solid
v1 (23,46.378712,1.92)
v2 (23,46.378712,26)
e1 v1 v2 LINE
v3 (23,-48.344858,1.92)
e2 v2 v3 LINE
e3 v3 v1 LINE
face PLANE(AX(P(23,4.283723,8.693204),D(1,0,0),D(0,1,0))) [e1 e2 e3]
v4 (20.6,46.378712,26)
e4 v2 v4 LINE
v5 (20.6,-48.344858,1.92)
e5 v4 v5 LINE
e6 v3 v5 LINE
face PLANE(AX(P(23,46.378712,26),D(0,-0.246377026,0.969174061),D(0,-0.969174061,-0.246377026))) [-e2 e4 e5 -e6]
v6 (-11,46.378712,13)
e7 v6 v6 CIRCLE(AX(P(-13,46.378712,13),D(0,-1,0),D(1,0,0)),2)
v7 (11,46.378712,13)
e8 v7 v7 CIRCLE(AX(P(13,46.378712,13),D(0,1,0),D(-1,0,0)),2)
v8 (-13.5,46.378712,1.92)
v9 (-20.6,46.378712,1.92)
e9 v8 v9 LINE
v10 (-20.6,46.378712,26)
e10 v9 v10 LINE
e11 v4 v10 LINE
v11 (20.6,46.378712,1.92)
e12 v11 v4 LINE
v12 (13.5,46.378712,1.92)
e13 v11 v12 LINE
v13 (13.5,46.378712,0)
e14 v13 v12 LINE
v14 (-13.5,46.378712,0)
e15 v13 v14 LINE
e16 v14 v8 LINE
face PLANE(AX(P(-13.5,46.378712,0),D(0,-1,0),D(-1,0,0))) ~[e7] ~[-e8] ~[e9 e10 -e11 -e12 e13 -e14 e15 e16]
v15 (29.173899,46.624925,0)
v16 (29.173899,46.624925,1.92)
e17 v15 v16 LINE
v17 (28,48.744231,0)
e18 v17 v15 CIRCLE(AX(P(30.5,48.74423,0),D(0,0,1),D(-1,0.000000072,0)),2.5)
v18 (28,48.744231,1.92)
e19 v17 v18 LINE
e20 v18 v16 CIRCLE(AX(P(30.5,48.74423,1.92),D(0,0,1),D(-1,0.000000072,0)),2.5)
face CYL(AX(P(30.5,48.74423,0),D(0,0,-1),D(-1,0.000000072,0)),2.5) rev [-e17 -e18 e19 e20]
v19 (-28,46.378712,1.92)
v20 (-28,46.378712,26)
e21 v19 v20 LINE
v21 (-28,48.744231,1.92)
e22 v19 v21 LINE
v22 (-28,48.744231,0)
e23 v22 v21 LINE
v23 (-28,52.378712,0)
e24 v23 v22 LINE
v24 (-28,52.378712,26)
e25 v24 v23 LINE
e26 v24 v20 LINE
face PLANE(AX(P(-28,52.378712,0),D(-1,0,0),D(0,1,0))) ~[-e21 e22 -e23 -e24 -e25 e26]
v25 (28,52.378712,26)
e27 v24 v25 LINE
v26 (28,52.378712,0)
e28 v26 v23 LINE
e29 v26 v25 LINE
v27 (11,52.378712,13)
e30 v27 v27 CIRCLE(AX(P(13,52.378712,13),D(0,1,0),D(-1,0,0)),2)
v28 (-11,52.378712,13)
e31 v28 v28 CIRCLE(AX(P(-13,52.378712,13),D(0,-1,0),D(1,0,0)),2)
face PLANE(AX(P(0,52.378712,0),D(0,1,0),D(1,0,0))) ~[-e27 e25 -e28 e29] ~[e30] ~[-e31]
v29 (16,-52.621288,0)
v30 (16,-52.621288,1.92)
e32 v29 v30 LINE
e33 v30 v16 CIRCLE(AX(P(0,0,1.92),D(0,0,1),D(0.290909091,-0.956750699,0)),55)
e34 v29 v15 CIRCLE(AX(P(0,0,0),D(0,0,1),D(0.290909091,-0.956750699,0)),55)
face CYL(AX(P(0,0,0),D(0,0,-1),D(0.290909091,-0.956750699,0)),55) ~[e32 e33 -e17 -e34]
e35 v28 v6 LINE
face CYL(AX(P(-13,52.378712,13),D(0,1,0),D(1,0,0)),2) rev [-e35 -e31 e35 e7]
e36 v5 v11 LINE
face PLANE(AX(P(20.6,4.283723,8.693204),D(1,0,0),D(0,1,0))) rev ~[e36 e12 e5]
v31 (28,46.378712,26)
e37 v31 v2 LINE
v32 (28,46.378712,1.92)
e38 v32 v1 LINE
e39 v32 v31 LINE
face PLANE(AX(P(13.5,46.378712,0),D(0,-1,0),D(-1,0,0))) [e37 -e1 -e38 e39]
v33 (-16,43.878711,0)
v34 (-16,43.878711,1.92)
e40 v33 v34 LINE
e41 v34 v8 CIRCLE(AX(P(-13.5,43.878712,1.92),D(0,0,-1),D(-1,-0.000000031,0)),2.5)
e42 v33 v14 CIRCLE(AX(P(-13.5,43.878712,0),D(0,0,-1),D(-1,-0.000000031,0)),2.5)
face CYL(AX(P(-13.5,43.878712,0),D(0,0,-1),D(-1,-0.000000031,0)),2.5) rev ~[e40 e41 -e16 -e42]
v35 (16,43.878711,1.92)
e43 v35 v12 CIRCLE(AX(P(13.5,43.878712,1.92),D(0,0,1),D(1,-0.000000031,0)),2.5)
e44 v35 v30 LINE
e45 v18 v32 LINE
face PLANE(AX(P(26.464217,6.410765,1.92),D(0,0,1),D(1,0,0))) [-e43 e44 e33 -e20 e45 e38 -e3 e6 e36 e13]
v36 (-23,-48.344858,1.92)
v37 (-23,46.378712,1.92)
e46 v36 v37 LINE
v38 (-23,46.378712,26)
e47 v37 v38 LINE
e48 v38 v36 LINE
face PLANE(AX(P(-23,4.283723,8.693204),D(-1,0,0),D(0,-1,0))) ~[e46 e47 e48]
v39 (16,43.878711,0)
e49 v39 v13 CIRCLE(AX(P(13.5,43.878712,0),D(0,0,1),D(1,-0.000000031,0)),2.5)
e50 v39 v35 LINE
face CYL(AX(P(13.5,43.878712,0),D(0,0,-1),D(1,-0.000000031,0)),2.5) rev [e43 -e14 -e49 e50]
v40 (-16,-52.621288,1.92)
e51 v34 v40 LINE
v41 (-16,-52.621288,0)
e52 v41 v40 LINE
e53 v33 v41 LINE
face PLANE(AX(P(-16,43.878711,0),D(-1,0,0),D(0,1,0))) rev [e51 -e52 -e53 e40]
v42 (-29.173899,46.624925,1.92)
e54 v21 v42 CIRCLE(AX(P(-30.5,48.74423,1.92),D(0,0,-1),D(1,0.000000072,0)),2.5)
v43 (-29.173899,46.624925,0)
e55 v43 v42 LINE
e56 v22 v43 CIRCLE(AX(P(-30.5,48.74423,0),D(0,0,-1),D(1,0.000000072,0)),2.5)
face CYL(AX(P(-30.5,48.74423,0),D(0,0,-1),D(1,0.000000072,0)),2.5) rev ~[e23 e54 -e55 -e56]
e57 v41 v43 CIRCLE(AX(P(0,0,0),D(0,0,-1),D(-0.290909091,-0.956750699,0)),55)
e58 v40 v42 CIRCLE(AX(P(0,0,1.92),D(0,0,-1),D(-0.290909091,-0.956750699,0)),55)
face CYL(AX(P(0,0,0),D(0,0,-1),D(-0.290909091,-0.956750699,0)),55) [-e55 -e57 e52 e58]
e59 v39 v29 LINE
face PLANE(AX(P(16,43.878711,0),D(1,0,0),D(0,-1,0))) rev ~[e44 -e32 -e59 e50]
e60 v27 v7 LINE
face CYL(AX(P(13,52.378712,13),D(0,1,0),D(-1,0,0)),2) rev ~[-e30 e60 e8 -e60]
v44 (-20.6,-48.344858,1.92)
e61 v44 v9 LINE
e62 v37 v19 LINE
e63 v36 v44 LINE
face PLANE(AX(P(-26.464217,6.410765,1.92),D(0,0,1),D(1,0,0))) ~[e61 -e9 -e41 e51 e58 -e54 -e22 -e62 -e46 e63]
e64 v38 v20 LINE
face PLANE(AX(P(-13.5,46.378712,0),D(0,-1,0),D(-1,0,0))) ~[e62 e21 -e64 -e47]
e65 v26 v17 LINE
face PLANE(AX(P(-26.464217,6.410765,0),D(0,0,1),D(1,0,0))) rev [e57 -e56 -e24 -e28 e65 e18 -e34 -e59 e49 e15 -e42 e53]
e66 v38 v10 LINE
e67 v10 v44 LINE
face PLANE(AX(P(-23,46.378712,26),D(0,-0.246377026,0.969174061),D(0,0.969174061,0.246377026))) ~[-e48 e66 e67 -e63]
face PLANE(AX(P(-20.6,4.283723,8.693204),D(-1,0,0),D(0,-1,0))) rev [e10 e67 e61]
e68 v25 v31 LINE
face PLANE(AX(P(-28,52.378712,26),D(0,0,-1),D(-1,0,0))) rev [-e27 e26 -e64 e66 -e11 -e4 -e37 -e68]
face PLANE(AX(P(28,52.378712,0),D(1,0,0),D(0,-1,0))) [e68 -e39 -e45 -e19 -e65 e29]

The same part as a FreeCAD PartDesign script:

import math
import FreeCAD as App
import Part
import Sketcher

V = App.Vector


def add_polygon(sketch, points):
    """Adds a closed chain of lines whose ends are joined by coincident constraints."""
    first, n = sketch.GeometryCount, len(points)
    for a, b in zip(points, points[1:] + points[:1]):
        sketch.addGeometry(Part.LineSegment(App.Vector(*a, 0), App.Vector(*b, 0)), False)
    for i in range(n):
        sketch.addConstraint(Sketcher.Constraint("Coincident", first + i, 2, first + (i + 1) % n, 1))

doc = App.newDocument("Part")
body = doc.addObject("PartDesign::Body", "Body")

sketch1 = doc.addObject("Sketcher::SketchObject", "Sketch")
body.addObject(sketch1)
sketch1.AttachmentSupport = (doc.XY_Plane, [""])
sketch1.MapMode = "FlatFace"
sketch1.addGeometry([
    Part.ArcOfCircle(Part.Circle(V(0, 0, 0), V(0, 0, 1), 55), math.radians(-73.08761), math.radians(57.965181)),
    Part.ArcOfCircle(Part.Circle(V(30.5, 48.74423, 0), V(0, 0, 1), 2.5), math.radians(179.999996), math.radians(237.964784)),
    Part.LineSegment(V(28, 48.744231, 0), V(28, 52.378712, 0)),
    Part.LineSegment(V(28, 52.378712, 0), V(0, 52.378712, 0)),
    Part.LineSegment(V(0, 52.378712, 0), V(0, 46.378712, 0)),
    Part.LineSegment(V(0, 46.378712, 0), V(13.5, 46.378712, 0)),
    Part.ArcOfCircle(Part.Circle(V(13.5, 43.878712, 0), V(0, 0, 1), 2.5), math.radians(-0.000002), math.radians(89.999992)),
    Part.LineSegment(V(16, 43.878711, 0), V(16, -52.621288, 0)),
], False)
sketch1.addConstraint([
    Sketcher.Constraint("Coincident", 0, 2, 1, 2),
    Sketcher.Constraint("Tangent", 1, 1, 2, 1),
    Sketcher.Constraint("Coincident", 2, 2, 3, 1),
    Sketcher.Constraint("Coincident", 3, 2, 4, 1),
    Sketcher.Constraint("Coincident", 4, 2, 5, 1),
    Sketcher.Constraint("Tangent", 5, 2, 6, 2),
    Sketcher.Constraint("Tangent", 6, 1, 7, 1),
    Sketcher.Constraint("Coincident", 7, 2, 0, 1),
    Sketcher.Constraint("Vertical", 2),
    Sketcher.Constraint("Horizontal", 3),
    Sketcher.Constraint("Vertical", 4),
    Sketcher.Constraint("Horizontal", 5),
    Sketcher.Constraint("Vertical", 7),
    Sketcher.Constraint("Coincident", 0, 3, -1, 1),
    Sketcher.Constraint("Equal", 1, 6),
    Sketcher.Constraint("PointOnObject", 3, 2, -2),
    Sketcher.Constraint("Radius", 0, 55.0),
    Sketcher.Constraint("Radius", 1, 2.5),
    Sketcher.Constraint("DistanceX", 3, 2, 3, 1, 28.0),
    Sketcher.Constraint("DistanceY", 4, 2, 4, 1, 6.0),
    Sketcher.Constraint("DistanceX", 5, 1, 5, 2, 13.5),
    Sketcher.Constraint("DistanceY", 7, 2, 7, 1, 96.5),
    Sketcher.Constraint("DistanceX", -1, 1, 0, 2, 29.173899),
])
pad1 = doc.addObject("PartDesign::Pad", "Pad")
body.addObject(pad1)
pad1.Profile = sketch1
pad1.Length = 1.92

sketch2 = doc.addObject("Sketcher::SketchObject", "Sketch001")
body.addObject(sketch2)
sketch2.AttachmentSupport = (doc.XZ_Plane, [""])
sketch2.MapMode = "FlatFace"
sketch2.AttachmentOffset = App.Placement(V(0, 0, -52.378712), App.Rotation())
add_polygon(sketch2, [(28, 26), (28, 0), (0, 0), (0, 26)])
sketch2.addGeometry(Part.Circle(V(13, 13, 0), V(0, 0, 1), 2), False)
sketch2.addConstraint([
    Sketcher.Constraint("Vertical", 0),
    Sketcher.Constraint("Horizontal", 1),
    Sketcher.Constraint("Vertical", 2),
    Sketcher.Constraint("Horizontal", 3),
    Sketcher.Constraint("Coincident", 1, 2, -1, 1),
    Sketcher.Constraint("Diameter", 4, 4.0),
    Sketcher.Constraint("DistanceX", 1, 2, 1, 1, 28.0),
    Sketcher.Constraint("DistanceY", 0, 2, 0, 1, 26.0),
    Sketcher.Constraint("DistanceX", -1, 1, 4, 3, 13.0),
    Sketcher.Constraint("DistanceY", -1, 1, 4, 3, 13.0),
])
pad2 = doc.addObject("PartDesign::Pad", "Pad001")
body.addObject(pad2)
pad2.Profile = sketch2
pad2.Length = 6

sketch3 = doc.addObject("Sketcher::SketchObject", "Sketch002")
body.addObject(sketch3)
sketch3.AttachmentSupport = (doc.YZ_Plane, [""])
sketch3.MapMode = "FlatFace"
sketch3.AttachmentOffset = App.Placement(V(0, 0, 23), App.Rotation())
add_polygon(sketch3, [(-48.344858, 1.92), (46.378712, 26), (46.378712, 1.92)])
sketch3.addConstraint([
    Sketcher.Constraint("Vertical", 1),
    Sketcher.Constraint("Horizontal", 2),
    Sketcher.Constraint("DistanceY", -1, 1, 0, 2, 26.0),
    Sketcher.Constraint("DistanceY", 1, 2, 1, 1, 24.08),
    Sketcher.Constraint("DistanceX", 2, 2, 2, 1, 94.72357),
    Sketcher.Constraint("DistanceX", -1, 1, 0, 2, 46.378712),
])
pad3 = doc.addObject("PartDesign::Pad", "Pad002")
body.addObject(pad3)
pad3.Profile = sketch3
pad3.Length = 2.4
pad3.Reversed = True
doc.recompute()

mirrored = doc.addObject("PartDesign::Mirrored", "Mirrored")
body.addObject(mirrored)
mirrored.Originals = [pad1, pad2, pad3]
mirrored.MirrorPlane = (doc.YZ_Plane, [""])
body.Tip = mirrored

doc.recompute()
